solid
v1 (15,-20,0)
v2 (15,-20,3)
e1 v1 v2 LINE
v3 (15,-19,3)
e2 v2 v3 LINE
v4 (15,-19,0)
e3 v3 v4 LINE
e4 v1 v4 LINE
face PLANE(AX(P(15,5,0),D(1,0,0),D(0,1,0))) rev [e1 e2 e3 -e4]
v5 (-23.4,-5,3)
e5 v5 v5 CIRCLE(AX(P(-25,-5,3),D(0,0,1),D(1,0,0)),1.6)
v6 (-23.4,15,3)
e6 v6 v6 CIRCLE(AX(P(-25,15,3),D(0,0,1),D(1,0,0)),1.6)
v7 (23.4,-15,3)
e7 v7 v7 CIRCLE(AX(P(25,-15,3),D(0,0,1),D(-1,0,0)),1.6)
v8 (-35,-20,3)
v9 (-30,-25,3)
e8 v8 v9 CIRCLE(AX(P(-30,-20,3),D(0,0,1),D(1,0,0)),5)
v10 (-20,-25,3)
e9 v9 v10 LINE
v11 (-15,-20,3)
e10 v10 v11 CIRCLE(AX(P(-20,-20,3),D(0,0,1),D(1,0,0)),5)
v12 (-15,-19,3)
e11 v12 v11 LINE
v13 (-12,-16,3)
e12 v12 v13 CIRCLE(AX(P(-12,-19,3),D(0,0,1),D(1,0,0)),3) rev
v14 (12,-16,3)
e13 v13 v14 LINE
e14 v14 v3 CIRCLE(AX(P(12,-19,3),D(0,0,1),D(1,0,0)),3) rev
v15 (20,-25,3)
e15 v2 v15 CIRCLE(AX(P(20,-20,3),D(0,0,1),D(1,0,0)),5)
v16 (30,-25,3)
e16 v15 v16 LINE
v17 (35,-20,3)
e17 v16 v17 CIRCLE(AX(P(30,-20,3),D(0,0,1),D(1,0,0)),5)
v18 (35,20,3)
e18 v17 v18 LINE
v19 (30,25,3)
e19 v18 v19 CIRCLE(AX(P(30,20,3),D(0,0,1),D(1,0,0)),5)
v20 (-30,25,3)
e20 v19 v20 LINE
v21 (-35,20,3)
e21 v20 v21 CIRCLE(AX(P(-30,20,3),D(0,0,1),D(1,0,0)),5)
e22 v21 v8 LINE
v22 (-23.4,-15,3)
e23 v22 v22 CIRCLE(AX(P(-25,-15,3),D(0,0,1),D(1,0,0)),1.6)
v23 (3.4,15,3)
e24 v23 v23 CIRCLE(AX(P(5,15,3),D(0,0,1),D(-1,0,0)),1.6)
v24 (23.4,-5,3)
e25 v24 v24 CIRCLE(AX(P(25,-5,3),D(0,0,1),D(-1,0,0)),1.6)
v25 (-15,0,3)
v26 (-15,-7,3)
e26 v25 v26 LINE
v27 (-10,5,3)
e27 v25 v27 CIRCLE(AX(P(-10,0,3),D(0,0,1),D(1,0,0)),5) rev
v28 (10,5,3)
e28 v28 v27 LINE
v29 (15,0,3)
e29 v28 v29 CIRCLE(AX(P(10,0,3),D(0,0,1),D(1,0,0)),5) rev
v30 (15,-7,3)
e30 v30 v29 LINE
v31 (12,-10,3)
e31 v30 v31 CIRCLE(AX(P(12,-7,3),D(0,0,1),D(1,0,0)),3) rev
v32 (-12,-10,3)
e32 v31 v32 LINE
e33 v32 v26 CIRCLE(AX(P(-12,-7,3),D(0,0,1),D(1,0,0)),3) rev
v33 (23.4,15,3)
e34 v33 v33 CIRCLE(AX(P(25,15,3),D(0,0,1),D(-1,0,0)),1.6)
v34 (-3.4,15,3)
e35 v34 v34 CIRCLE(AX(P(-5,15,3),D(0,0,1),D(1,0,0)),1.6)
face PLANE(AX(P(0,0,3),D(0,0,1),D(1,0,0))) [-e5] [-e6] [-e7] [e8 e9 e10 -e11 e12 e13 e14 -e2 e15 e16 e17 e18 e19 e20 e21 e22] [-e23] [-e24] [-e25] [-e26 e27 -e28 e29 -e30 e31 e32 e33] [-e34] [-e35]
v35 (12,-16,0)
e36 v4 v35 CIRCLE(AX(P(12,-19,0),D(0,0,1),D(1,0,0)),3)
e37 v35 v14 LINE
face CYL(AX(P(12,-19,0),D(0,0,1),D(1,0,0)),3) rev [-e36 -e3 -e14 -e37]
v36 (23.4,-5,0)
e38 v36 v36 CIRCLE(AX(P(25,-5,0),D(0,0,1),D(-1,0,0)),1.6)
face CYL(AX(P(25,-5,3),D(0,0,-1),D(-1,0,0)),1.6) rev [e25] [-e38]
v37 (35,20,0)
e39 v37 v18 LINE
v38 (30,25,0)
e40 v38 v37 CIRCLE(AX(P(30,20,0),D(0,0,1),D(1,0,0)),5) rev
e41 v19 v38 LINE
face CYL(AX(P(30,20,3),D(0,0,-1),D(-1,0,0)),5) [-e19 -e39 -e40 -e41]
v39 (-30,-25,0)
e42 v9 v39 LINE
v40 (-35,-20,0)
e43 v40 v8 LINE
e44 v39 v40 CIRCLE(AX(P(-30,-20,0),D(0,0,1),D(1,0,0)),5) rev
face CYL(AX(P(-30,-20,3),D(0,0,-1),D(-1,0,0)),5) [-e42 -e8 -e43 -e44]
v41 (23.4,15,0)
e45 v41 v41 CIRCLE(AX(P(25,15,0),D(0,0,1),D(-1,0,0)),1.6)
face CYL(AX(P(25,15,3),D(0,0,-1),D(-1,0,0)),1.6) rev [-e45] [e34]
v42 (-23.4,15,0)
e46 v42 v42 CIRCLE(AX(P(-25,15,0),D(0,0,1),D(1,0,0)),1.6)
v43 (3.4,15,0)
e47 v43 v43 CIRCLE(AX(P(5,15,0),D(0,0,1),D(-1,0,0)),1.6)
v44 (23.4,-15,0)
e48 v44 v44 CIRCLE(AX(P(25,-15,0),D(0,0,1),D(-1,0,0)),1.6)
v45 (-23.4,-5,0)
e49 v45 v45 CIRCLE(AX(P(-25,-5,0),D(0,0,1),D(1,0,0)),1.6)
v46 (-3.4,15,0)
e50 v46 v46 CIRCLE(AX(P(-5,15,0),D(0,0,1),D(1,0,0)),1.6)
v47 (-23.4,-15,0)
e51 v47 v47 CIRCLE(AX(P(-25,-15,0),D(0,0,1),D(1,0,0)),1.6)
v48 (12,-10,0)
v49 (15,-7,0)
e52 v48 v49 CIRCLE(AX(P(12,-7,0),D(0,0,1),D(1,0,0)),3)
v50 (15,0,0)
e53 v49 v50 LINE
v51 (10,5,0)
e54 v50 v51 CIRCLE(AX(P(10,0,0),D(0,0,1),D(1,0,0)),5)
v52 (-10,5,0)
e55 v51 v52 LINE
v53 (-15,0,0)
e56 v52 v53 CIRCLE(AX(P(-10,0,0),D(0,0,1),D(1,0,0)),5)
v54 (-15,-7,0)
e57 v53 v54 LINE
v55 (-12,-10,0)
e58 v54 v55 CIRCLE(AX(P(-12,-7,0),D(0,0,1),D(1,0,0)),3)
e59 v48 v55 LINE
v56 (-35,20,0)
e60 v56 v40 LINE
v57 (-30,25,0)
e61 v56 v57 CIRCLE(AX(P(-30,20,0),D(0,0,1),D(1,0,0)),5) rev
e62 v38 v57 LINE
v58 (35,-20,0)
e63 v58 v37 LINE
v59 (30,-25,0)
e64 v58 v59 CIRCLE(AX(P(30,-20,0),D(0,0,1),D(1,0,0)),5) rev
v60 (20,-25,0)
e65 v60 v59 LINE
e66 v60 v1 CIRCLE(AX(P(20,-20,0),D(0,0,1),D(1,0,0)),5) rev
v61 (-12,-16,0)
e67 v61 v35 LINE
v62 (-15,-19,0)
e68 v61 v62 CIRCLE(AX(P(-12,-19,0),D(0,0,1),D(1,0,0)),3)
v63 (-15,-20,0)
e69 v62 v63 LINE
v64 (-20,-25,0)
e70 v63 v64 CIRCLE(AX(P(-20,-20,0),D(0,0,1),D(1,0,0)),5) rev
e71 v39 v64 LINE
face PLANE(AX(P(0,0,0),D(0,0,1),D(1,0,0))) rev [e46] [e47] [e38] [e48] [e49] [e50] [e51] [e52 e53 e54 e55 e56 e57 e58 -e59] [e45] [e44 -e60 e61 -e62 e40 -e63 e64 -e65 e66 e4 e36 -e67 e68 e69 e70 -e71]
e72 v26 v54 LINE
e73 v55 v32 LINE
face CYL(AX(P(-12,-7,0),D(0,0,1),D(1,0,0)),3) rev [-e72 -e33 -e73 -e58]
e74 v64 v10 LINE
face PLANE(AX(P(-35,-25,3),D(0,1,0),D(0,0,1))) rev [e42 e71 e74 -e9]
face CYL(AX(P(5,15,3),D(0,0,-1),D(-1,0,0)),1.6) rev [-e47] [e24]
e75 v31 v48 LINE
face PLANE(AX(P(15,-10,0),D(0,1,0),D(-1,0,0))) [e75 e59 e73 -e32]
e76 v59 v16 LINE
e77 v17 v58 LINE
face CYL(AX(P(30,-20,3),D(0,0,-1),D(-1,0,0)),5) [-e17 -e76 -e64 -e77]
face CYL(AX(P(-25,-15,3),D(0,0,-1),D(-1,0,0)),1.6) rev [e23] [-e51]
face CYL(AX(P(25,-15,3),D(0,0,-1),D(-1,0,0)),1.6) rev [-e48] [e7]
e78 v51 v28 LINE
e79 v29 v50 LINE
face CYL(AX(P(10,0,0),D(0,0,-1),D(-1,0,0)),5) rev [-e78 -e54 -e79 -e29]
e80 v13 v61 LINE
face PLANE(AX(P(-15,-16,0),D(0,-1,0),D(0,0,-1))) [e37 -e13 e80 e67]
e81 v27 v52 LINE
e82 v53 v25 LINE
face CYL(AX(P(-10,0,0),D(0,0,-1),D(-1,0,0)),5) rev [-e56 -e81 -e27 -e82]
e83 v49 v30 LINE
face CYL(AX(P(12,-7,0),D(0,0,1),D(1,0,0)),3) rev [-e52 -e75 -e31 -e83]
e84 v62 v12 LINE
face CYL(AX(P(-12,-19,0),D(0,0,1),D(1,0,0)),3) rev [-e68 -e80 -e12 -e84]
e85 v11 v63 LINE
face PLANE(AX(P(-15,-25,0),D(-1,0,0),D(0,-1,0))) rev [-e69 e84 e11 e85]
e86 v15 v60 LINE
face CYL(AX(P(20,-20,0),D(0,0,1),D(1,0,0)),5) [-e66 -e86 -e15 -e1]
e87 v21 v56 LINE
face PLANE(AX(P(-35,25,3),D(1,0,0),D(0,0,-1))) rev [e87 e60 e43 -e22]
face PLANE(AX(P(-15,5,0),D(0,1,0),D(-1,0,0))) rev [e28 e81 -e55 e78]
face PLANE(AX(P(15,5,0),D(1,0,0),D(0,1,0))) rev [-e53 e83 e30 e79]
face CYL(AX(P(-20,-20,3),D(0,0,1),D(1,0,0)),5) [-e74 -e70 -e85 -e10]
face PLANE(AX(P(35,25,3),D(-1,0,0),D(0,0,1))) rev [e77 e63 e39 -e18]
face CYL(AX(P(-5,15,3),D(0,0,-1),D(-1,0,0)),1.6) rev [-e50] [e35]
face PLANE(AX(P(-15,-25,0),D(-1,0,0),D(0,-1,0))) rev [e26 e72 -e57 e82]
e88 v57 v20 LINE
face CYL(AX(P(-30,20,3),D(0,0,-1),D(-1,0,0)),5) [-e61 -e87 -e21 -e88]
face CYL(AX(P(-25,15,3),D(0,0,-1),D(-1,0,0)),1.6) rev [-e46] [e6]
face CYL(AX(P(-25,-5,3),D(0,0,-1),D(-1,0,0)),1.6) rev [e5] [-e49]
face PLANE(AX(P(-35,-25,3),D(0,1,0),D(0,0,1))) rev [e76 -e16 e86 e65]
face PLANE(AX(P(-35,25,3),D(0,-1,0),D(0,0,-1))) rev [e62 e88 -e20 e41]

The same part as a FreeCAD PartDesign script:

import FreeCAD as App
import Part
import Sketcher
from FreeCAD import Vector
Q = App.Units.Quantity


def edges_at(feature, points):
    """Names of the edges that pass closest to the given points."""
    edges = feature.Shape.Edges
    near = lambda p: min(range(len(edges)), key=lambda i: edges[i].distToShape(Part.Vertex(*p))[0])
    return sorted({f"Edge{near(p) + 1}" for p in points})

doc = App.newDocument("Part")
body = doc.addObject("PartDesign::Body", "Body")

sketch1 = body.newObject("Sketcher::SketchObject", "Sketch")
sketch1.AttachmentSupport = (doc.getObject("XY_Plane"), [""])
sketch1.MapMode = "FlatFace"
sketch1.addGeometry([
    Part.LineSegment(Vector(-35, 25, 0), Vector(-35, -25, 0)),
    Part.LineSegment(Vector(-35, -25, 0), Vector(35, -25, 0)),
    Part.LineSegment(Vector(35, -25, 0), Vector(35, 25, 0)),
    Part.LineSegment(Vector(35, 25, 0), Vector(-35, 25, 0)),
    Part.Circle(Vector(-25, -15, 0), Vector(0, 0, 1), 1.6),
    Part.Circle(Vector(-25, -5, 0), Vector(0, 0, 1), 1.6),
    Part.Circle(Vector(25, -15, 0), Vector(0, 0, 1), 1.6),
    Part.Circle(Vector(25, -5, 0), Vector(0, 0, 1), 1.6),
    Part.Circle(Vector(-25, 15, 0), Vector(0, 0, 1), 1.6),
    Part.Circle(Vector(-5, 15, 0), Vector(0, 0, 1), 1.6),
    Part.Circle(Vector(5, 15, 0), Vector(0, 0, 1), 1.6),
    Part.Circle(Vector(25, 15, 0), Vector(0, 0, 1), 1.6),
], False)
sketch1.addConstraint([
    Sketcher.Constraint("Coincident", 0, 2, 1, 1),
    Sketcher.Constraint("Coincident", 1, 2, 2, 1),
    Sketcher.Constraint("Coincident", 2, 2, 3, 1),
    Sketcher.Constraint("Coincident", 3, 2, 0, 1),
    Sketcher.Constraint("Vertical", 0),
    Sketcher.Constraint("Horizontal", 1),
    Sketcher.Constraint("Vertical", 2),
    Sketcher.Constraint("Horizontal", 3),
    Sketcher.Constraint("Equal", 4, 5),
    Sketcher.Constraint("Equal", 5, 6),
    Sketcher.Constraint("Equal", 6, 7),
    Sketcher.Constraint("Equal", 7, 8),
    Sketcher.Constraint("Equal", 8, 9),
    Sketcher.Constraint("Equal", 9, 10),
    Sketcher.Constraint("Equal", 10, 11),
    Sketcher.Constraint("Symmetric", 6, 3, 8, 3, -1, 1),
    Sketcher.Constraint("Symmetric", 4, 3, 11, 3, -1, 1),
    Sketcher.Constraint("Symmetric", 0, 2, 2, 2, -1, 1),
    Sketcher.Constraint("Symmetric", 4, 3, 6, 3, -2),
    Sketcher.Constraint("Symmetric", 5, 3, 7, 3, -2),
    Sketcher.Constraint("Symmetric", 9, 3, 10, 3, -2),
    Sketcher.Constraint("Horizontal", 8, 3, 9, 3),
    Sketcher.Constraint("Vertical", 4, 3, 5, 3),
    Sketcher.Constraint("Diameter", 4, Q("3.2 mm")),
    Sketcher.Constraint("DistanceX", 1, 1, 1, 2, Q("70 mm")),
    Sketcher.Constraint("DistanceY", 0, 2, 0, 1, Q("50 mm")),
    Sketcher.Constraint("DistanceX", 4, 3, -1, 1, Q("25 mm")),
    Sketcher.Constraint("DistanceY", 4, 3, -1, 1, Q("15 mm")),
    Sketcher.Constraint("DistanceY", 5, 3, -1, 1, Q("5 mm")),
    Sketcher.Constraint("DistanceX", 9, 3, -1, 1, Q("5 mm")),
])
pad1 = body.newObject("PartDesign::Pad", "Pad")
pad1.Profile = sketch1
pad1.Length = 3

sketch2 = body.newObject("Sketcher::SketchObject", "Sketch001")
sketch2.AttachmentSupport = (doc.getObject("XY_Plane"), [""])
sketch2.MapMode = "FlatFace"
sketch2.AttachmentOffset = App.Placement(Vector(0, 0, 3), App.Rotation())
sketch2.addGeometry([
    Part.LineSegment(Vector(-15, 5, 0), Vector(-15, -25, 0)),
    Part.LineSegment(Vector(-15, -25, 0), Vector(15, -25, 0)),
    Part.LineSegment(Vector(15, -25, 0), Vector(15, 5, 0)),
    Part.LineSegment(Vector(15, 5, 0), Vector(-15, 5, 0)),
], False)
sketch2.addConstraint([
    Sketcher.Constraint("Coincident", 0, 2, 1, 1),
    Sketcher.Constraint("Coincident", 1, 2, 2, 1),
    Sketcher.Constraint("Coincident", 2, 2, 3, 1),
    Sketcher.Constraint("Coincident", 3, 2, 0, 1),
    Sketcher.Constraint("Vertical", 0),
    Sketcher.Constraint("Horizontal", 1),
    Sketcher.Constraint("Vertical", 2),
    Sketcher.Constraint("Horizontal", 3),
    Sketcher.Constraint("Equal", 3, 0),
    Sketcher.Constraint("DistanceX", 1, 1, 1, 2, Q("30 mm")),
    Sketcher.Constraint("DistanceX", 0, 2, -1, 1, Q("15 mm")),
    Sketcher.Constraint("DistanceY", 0, 2, -1, 1, Q("25 mm")),
])
pocket1 = body.newObject("PartDesign::Pocket", "Pocket")
pocket1.Profile = sketch2
pocket1.Type = "ThroughAll"
doc.recompute()

fillet = body.newObject("PartDesign::Fillet", "Fillet")
fillet.Base = (pocket1, edges_at(pocket1, [
    (15, -25, 1.5),
    (-15, -25, 1.5),
    (-15, 5, 1.5),
    (15, 5, 1.5),
    (35, -25, 1.5),
    (-35, -25, 1.5),
    (-35, 25, 1.5),
    (35, 25, 1.5),
]))
fillet.Radius = 5

sketch3 = body.newObject("Sketcher::SketchObject", "Sketch002")
sketch3.AttachmentSupport = (doc.getObject("XY_Plane"), [""])
sketch3.MapMode = "FlatFace"
sketch3.AttachmentOffset = App.Placement(Vector(0, 0, 3), App.Rotation())
sketch3.addGeometry([
    Part.LineSegment(Vector(-15, -10, 0), Vector(-15, -16, 0)),
    Part.LineSegment(Vector(-15, -16, 0), Vector(15, -16, 0)),
    Part.LineSegment(Vector(15, -16, 0), Vector(15, -10, 0)),
    Part.LineSegment(Vector(15, -10, 0), Vector(-15, -10, 0)),
], False)
sketch3.addConstraint([
    Sketcher.Constraint("Coincident", 0, 2, 1, 1),
    Sketcher.Constraint("Coincident", 1, 2, 2, 1),
    Sketcher.Constraint("Coincident", 2, 2, 3, 1),
    Sketcher.Constraint("Coincident", 3, 2, 0, 1),
    Sketcher.Constraint("Vertical", 0),
    Sketcher.Constraint("Horizontal", 1),
    Sketcher.Constraint("Vertical", 2),
    Sketcher.Constraint("Horizontal", 3),
    Sketcher.Constraint("DistanceX", 1, 1, 1, 2, Q("30 mm")),
    Sketcher.Constraint("DistanceY", 0, 2, 0, 1, Q("6 mm")),
    Sketcher.Constraint("DistanceX", 0, 2, -1, 1, Q("15 mm")),
    Sketcher.Constraint("DistanceY", 0, 2, -1, 1, Q("16 mm")),
])
pad2 = body.newObject("PartDesign::Pad", "Pad001")
pad2.Profile = sketch3
pad2.Length = 3
pad2.Reversed = True
doc.recompute()

fillet2 = body.newObject("PartDesign::Fillet", "Fillet001")
fillet2.Base = (pad2, edges_at(pad2, [
    (-15, -16, 1.5),
    (-15, -10, 1.5),
    (15, -10, 1.5),
    (15, -16, 1.5),
]))
fillet2.Radius = 3

doc.recompute()
